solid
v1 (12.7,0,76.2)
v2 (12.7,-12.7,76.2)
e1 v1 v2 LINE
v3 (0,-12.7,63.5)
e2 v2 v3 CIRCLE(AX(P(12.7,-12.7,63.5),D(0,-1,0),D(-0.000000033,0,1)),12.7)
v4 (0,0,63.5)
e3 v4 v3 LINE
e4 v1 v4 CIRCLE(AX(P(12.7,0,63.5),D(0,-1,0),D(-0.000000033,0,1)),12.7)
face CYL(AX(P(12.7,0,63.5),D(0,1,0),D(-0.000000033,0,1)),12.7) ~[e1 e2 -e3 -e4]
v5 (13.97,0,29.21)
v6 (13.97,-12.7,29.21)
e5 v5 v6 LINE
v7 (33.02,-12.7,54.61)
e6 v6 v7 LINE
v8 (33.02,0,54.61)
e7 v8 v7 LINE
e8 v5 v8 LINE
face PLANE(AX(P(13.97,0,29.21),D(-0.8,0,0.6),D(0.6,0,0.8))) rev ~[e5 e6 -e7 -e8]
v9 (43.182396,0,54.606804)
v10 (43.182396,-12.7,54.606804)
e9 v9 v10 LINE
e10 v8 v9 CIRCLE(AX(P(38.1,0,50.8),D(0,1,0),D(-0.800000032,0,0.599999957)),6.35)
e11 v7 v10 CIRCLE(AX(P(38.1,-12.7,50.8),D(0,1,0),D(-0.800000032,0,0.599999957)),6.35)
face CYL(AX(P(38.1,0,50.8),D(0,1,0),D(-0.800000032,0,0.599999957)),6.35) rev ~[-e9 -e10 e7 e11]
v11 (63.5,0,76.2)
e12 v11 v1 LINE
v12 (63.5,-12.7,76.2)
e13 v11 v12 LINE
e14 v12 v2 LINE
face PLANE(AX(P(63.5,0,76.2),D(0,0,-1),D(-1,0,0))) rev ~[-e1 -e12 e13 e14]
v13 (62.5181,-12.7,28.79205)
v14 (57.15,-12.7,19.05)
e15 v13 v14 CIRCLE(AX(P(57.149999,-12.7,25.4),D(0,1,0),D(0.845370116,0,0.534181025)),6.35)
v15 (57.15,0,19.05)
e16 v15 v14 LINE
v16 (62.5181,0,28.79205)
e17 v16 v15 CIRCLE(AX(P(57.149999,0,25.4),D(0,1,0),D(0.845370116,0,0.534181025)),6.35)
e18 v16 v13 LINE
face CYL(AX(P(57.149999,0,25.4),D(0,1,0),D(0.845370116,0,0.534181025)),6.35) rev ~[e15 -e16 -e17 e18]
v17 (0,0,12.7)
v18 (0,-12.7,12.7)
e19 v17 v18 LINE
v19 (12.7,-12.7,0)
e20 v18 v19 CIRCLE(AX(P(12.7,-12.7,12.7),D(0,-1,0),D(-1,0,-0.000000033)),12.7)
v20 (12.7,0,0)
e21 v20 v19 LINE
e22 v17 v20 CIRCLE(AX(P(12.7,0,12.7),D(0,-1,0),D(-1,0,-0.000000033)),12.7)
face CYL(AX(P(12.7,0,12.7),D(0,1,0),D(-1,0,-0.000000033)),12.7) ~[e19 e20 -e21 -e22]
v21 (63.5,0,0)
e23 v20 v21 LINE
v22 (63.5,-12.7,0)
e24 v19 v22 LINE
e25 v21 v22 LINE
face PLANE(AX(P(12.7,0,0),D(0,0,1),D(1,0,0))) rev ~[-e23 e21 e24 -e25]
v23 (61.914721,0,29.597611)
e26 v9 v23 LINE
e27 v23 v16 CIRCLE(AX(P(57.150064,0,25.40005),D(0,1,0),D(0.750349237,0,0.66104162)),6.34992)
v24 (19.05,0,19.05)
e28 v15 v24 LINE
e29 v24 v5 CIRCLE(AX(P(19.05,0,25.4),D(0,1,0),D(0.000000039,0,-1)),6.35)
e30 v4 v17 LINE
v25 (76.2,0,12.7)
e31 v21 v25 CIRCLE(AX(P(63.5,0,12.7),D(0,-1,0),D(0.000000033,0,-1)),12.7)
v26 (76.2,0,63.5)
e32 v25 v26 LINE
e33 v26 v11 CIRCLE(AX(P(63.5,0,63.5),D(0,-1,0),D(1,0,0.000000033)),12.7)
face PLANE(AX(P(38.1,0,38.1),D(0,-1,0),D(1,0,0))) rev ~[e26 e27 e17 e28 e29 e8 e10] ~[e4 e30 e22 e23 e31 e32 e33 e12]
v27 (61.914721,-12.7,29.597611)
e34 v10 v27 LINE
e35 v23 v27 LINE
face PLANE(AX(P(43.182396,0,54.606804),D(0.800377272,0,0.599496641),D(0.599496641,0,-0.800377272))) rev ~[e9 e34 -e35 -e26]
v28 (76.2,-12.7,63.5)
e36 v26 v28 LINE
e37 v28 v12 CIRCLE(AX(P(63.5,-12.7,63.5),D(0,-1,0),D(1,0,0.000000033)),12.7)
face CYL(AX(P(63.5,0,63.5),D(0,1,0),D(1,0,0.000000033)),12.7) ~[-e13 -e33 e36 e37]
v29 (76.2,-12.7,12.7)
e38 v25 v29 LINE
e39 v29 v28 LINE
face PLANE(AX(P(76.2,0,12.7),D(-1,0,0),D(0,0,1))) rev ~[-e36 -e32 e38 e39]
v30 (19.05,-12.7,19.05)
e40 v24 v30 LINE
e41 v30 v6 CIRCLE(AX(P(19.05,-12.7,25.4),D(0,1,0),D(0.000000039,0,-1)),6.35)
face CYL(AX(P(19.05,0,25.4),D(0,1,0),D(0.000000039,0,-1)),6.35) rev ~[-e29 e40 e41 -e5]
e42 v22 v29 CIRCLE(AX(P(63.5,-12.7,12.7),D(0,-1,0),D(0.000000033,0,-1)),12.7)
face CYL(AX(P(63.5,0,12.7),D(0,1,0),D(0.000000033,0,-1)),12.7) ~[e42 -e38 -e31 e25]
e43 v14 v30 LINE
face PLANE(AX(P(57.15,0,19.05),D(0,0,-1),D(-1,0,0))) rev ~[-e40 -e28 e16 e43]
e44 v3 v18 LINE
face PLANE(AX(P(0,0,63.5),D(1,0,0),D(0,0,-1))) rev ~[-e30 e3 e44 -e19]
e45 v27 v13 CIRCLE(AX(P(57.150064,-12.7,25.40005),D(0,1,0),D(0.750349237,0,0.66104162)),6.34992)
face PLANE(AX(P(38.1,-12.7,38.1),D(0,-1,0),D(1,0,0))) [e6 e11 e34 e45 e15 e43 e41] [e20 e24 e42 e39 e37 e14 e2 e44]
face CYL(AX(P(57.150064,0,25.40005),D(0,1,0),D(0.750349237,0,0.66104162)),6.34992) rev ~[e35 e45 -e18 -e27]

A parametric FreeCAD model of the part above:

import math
import FreeCAD as App
import Part
import Sketcher
from FreeCAD import Vector
Q = App.Units.Quantity

doc = App.newDocument("Part")
params = doc.addObject("Spreadsheet::Sheet", "Params")
for row, (alias, value) in enumerate([
    ("sketch1_radius", "0.5 in"),
    ("sketch1_width", "2 in"),
    ("sketch1_radius2", "0.25 in"),
    ("sketch1_width2", "1.5 in"),
    ("pad1_length", "0.5 in"),
], start=1):
    params.set(f"A{row}", alias)
    params.set(f"B{row}", "=" + value)
    params.setAlias(f"B{row}", alias)

body = doc.addObject("PartDesign::Body", "Body")

sketch1 = body.newObject("Sketcher::SketchObject", "Sketch")
sketch1.AttachmentSupport = (doc.getObject("XZ_Plane"), [""])
sketch1.MapMode = "FlatFace"
sketch1.addGeometry(Part.ArcOfCircle(Part.Circle(Vector(12.7, 12.7, 0), Vector(0, 0, 1), 12.7), math.radians(-179.999998), math.radians(-90.000002)), False)
sketch1.addGeometry(Part.LineSegment(Vector(12.7, 0, 0), Vector(63.5, 0, 0)), False)
sketch1.addGeometry(Part.ArcOfCircle(Part.Circle(Vector(63.5, 12.7, 0), Vector(0, 0, 1), 12.7), math.radians(-89.999998), math.radians(-0.000002)), False)
sketch1.addGeometry(Part.LineSegment(Vector(76.2, 12.7, 0), Vector(76.2, 63.5, 0)), False)
sketch1.addGeometry(Part.ArcOfCircle(Part.Circle(Vector(63.5, 63.5, 0), Vector(0, 0, 1), 12.7), math.radians(0.000002), math.radians(89.999998)), False)
sketch1.addGeometry(Part.LineSegment(Vector(63.5, 76.2, 0), Vector(12.7, 76.2, 0)), False)
sketch1.addGeometry(Part.ArcOfCircle(Part.Circle(Vector(12.7, 63.5, 0), Vector(0, 0, 1), 12.7), math.radians(90.000002), math.radians(179.999998)), False)
sketch1.addGeometry(Part.LineSegment(Vector(0, 63.5, 0), Vector(0, 12.7, 0)), False)
sketch1.addGeometry(Part.LineSegment(Vector(57.15, 19.05, 0), Vector(19.05, 19.05, 0)), False)
sketch1.addGeometry(Part.ArcOfCircle(Part.Circle(Vector(19.05, 25.4, 0), Vector(0, 0, 1), 6.35), math.radians(143.1301), math.radians(270.000002)), False)
sketch1.addGeometry(Part.LineSegment(Vector(13.97, 29.21, 0), Vector(33.02, 54.61, 0)), False)
sketch1.addGeometry(Part.ArcOfCircle(Part.Circle(Vector(38.1, 50.8, 0), Vector(0, 0, 1), 6.35), math.radians(36.833856), math.radians(143.130105)), False)
sketch1.addGeometry(Part.LineSegment(Vector(43.182396, 54.606804, 0), Vector(61.914721, 29.597611, 0)), False)
sketch1.addGeometry(Part.ArcOfCircle(Part.Circle(Vector(57.150064, 25.40005, 0), Vector(0, 0, 1), 6.34992), math.radians(32.288319), math.radians(41.379361)), False)
sketch1.addGeometry(Part.ArcOfCircle(Part.Circle(Vector(57.149999, 25.4, 0), Vector(0, 0, 1), 6.35), math.radians(-89.999995), math.radians(32.288388)), False)
sketch1.addConstraint(Sketcher.Constraint("Tangent", 0, 2, 1, 1))
sketch1.addConstraint(Sketcher.Constraint("Tangent", 1, 2, 2, 1))
sketch1.addConstraint(Sketcher.Constraint("Tangent", 2, 2, 3, 1))
sketch1.addConstraint(Sketcher.Constraint("Tangent", 3, 2, 4, 1))
sketch1.addConstraint(Sketcher.Constraint("Tangent", 4, 2, 5, 1))
sketch1.addConstraint(Sketcher.Constraint("Tangent", 5, 2, 6, 1))
sketch1.addConstraint(Sketcher.Constraint("Tangent", 6, 2, 7, 1))
sketch1.addConstraint(Sketcher.Constraint("Tangent", 7, 2, 0, 1))
sketch1.addConstraint(Sketcher.Constraint("Tangent", 8, 2, 9, 2))
sketch1.addConstraint(Sketcher.Constraint("Tangent", 9, 1, 10, 1))
sketch1.addConstraint(Sketcher.Constraint("Tangent", 10, 2, 11, 2))
sketch1.addConstraint(Sketcher.Constraint("Tangent", 11, 1, 12, 1))
sketch1.addConstraint(Sketcher.Constraint("Coincident", 12, 2, 13, 2))
sketch1.addConstraint(Sketcher.Constraint("Tangent", 13, 1, 14, 2))
sketch1.addConstraint(Sketcher.Constraint("Tangent", 14, 1, 8, 1))
sketch1.addConstraint(Sketcher.Constraint("Horizontal", 1))
sketch1.addConstraint(Sketcher.Constraint("Vertical", 3))
sketch1.addConstraint(Sketcher.Constraint("Horizontal", 5))
sketch1.addConstraint(Sketcher.Constraint("Vertical", 7))
sketch1.addConstraint(Sketcher.Constraint("Horizontal", 8))
sketch1.addConstraint(Sketcher.Constraint("Equal", 0, 2))
sketch1.addConstraint(Sketcher.Constraint("Equal", 2, 4))
sketch1.addConstraint(Sketcher.Constraint("Equal", 4, 6))
sketch1.addConstraint(Sketcher.Constraint("Equal", 9, 11))
sketch1.addConstraint(Sketcher.Constraint("Equal", 11, 14))
sketch1.addConstraint(Sketcher.Constraint("PointOnObject", 0, 2, -1))
sketch1.addConstraint(Sketcher.Constraint("PointOnObject", 6, 2, -2))
sketch1.addConstraint(Sketcher.Constraint("Equal", 5, 3))
sketch1.addConstraint(Sketcher.Constraint("Radius", 0, Q("0.5 in")))
sketch1.addConstraint(Sketcher.Constraint("DistanceX", 1, 1, 1, 2, Q("2 in")))
sketch1.addConstraint(Sketcher.Constraint("Radius", 9, Q("0.25 in")))
sketch1.addConstraint(Sketcher.Constraint("DistanceX", 8, 2, 8, 1, Q("1.5 in")))
sketch1.addConstraint(Sketcher.Constraint("DistanceY", -1, 1, 9, 3, Q("1 in")))
sketch1.addConstraint(Sketcher.Constraint("DistanceY", -1, 1, 11, 3, Q("2 in")))
sketch1.addConstraint(Sketcher.Constraint("DistanceX", 11, 3, 4, 3, Q("1 in")))
sketch1.addConstraint(Sketcher.Constraint("DistanceX", -1, 1, 10, 2, Q("1.3 in")))
sketch1.addConstraint(Sketcher.Constraint("Radius", 13, Q("6.34992 mm")))
sketch1.addConstraint(Sketcher.Constraint("DistanceX", -1, 1, 13, 1, Q("62.5181 mm")))
sketch1.addConstraint(Sketcher.Constraint("DistanceX", -1, 1, 12, 2, Q("61.914721 mm")))
sketch1.setExpression("Constraints[28]", "Params.sketch1_radius")
sketch1.setExpression("Constraints[29]", "Params.sketch1_width")
sketch1.setExpression("Constraints[30]", "Params.sketch1_radius2")
sketch1.setExpression("Constraints[31]", "Params.sketch1_width2")
pad1 = body.newObject("PartDesign::Pad", "Pad")
pad1.Profile = sketch1
pad1.setExpression("Length", "Params.pad1_length")

doc.recompute()
